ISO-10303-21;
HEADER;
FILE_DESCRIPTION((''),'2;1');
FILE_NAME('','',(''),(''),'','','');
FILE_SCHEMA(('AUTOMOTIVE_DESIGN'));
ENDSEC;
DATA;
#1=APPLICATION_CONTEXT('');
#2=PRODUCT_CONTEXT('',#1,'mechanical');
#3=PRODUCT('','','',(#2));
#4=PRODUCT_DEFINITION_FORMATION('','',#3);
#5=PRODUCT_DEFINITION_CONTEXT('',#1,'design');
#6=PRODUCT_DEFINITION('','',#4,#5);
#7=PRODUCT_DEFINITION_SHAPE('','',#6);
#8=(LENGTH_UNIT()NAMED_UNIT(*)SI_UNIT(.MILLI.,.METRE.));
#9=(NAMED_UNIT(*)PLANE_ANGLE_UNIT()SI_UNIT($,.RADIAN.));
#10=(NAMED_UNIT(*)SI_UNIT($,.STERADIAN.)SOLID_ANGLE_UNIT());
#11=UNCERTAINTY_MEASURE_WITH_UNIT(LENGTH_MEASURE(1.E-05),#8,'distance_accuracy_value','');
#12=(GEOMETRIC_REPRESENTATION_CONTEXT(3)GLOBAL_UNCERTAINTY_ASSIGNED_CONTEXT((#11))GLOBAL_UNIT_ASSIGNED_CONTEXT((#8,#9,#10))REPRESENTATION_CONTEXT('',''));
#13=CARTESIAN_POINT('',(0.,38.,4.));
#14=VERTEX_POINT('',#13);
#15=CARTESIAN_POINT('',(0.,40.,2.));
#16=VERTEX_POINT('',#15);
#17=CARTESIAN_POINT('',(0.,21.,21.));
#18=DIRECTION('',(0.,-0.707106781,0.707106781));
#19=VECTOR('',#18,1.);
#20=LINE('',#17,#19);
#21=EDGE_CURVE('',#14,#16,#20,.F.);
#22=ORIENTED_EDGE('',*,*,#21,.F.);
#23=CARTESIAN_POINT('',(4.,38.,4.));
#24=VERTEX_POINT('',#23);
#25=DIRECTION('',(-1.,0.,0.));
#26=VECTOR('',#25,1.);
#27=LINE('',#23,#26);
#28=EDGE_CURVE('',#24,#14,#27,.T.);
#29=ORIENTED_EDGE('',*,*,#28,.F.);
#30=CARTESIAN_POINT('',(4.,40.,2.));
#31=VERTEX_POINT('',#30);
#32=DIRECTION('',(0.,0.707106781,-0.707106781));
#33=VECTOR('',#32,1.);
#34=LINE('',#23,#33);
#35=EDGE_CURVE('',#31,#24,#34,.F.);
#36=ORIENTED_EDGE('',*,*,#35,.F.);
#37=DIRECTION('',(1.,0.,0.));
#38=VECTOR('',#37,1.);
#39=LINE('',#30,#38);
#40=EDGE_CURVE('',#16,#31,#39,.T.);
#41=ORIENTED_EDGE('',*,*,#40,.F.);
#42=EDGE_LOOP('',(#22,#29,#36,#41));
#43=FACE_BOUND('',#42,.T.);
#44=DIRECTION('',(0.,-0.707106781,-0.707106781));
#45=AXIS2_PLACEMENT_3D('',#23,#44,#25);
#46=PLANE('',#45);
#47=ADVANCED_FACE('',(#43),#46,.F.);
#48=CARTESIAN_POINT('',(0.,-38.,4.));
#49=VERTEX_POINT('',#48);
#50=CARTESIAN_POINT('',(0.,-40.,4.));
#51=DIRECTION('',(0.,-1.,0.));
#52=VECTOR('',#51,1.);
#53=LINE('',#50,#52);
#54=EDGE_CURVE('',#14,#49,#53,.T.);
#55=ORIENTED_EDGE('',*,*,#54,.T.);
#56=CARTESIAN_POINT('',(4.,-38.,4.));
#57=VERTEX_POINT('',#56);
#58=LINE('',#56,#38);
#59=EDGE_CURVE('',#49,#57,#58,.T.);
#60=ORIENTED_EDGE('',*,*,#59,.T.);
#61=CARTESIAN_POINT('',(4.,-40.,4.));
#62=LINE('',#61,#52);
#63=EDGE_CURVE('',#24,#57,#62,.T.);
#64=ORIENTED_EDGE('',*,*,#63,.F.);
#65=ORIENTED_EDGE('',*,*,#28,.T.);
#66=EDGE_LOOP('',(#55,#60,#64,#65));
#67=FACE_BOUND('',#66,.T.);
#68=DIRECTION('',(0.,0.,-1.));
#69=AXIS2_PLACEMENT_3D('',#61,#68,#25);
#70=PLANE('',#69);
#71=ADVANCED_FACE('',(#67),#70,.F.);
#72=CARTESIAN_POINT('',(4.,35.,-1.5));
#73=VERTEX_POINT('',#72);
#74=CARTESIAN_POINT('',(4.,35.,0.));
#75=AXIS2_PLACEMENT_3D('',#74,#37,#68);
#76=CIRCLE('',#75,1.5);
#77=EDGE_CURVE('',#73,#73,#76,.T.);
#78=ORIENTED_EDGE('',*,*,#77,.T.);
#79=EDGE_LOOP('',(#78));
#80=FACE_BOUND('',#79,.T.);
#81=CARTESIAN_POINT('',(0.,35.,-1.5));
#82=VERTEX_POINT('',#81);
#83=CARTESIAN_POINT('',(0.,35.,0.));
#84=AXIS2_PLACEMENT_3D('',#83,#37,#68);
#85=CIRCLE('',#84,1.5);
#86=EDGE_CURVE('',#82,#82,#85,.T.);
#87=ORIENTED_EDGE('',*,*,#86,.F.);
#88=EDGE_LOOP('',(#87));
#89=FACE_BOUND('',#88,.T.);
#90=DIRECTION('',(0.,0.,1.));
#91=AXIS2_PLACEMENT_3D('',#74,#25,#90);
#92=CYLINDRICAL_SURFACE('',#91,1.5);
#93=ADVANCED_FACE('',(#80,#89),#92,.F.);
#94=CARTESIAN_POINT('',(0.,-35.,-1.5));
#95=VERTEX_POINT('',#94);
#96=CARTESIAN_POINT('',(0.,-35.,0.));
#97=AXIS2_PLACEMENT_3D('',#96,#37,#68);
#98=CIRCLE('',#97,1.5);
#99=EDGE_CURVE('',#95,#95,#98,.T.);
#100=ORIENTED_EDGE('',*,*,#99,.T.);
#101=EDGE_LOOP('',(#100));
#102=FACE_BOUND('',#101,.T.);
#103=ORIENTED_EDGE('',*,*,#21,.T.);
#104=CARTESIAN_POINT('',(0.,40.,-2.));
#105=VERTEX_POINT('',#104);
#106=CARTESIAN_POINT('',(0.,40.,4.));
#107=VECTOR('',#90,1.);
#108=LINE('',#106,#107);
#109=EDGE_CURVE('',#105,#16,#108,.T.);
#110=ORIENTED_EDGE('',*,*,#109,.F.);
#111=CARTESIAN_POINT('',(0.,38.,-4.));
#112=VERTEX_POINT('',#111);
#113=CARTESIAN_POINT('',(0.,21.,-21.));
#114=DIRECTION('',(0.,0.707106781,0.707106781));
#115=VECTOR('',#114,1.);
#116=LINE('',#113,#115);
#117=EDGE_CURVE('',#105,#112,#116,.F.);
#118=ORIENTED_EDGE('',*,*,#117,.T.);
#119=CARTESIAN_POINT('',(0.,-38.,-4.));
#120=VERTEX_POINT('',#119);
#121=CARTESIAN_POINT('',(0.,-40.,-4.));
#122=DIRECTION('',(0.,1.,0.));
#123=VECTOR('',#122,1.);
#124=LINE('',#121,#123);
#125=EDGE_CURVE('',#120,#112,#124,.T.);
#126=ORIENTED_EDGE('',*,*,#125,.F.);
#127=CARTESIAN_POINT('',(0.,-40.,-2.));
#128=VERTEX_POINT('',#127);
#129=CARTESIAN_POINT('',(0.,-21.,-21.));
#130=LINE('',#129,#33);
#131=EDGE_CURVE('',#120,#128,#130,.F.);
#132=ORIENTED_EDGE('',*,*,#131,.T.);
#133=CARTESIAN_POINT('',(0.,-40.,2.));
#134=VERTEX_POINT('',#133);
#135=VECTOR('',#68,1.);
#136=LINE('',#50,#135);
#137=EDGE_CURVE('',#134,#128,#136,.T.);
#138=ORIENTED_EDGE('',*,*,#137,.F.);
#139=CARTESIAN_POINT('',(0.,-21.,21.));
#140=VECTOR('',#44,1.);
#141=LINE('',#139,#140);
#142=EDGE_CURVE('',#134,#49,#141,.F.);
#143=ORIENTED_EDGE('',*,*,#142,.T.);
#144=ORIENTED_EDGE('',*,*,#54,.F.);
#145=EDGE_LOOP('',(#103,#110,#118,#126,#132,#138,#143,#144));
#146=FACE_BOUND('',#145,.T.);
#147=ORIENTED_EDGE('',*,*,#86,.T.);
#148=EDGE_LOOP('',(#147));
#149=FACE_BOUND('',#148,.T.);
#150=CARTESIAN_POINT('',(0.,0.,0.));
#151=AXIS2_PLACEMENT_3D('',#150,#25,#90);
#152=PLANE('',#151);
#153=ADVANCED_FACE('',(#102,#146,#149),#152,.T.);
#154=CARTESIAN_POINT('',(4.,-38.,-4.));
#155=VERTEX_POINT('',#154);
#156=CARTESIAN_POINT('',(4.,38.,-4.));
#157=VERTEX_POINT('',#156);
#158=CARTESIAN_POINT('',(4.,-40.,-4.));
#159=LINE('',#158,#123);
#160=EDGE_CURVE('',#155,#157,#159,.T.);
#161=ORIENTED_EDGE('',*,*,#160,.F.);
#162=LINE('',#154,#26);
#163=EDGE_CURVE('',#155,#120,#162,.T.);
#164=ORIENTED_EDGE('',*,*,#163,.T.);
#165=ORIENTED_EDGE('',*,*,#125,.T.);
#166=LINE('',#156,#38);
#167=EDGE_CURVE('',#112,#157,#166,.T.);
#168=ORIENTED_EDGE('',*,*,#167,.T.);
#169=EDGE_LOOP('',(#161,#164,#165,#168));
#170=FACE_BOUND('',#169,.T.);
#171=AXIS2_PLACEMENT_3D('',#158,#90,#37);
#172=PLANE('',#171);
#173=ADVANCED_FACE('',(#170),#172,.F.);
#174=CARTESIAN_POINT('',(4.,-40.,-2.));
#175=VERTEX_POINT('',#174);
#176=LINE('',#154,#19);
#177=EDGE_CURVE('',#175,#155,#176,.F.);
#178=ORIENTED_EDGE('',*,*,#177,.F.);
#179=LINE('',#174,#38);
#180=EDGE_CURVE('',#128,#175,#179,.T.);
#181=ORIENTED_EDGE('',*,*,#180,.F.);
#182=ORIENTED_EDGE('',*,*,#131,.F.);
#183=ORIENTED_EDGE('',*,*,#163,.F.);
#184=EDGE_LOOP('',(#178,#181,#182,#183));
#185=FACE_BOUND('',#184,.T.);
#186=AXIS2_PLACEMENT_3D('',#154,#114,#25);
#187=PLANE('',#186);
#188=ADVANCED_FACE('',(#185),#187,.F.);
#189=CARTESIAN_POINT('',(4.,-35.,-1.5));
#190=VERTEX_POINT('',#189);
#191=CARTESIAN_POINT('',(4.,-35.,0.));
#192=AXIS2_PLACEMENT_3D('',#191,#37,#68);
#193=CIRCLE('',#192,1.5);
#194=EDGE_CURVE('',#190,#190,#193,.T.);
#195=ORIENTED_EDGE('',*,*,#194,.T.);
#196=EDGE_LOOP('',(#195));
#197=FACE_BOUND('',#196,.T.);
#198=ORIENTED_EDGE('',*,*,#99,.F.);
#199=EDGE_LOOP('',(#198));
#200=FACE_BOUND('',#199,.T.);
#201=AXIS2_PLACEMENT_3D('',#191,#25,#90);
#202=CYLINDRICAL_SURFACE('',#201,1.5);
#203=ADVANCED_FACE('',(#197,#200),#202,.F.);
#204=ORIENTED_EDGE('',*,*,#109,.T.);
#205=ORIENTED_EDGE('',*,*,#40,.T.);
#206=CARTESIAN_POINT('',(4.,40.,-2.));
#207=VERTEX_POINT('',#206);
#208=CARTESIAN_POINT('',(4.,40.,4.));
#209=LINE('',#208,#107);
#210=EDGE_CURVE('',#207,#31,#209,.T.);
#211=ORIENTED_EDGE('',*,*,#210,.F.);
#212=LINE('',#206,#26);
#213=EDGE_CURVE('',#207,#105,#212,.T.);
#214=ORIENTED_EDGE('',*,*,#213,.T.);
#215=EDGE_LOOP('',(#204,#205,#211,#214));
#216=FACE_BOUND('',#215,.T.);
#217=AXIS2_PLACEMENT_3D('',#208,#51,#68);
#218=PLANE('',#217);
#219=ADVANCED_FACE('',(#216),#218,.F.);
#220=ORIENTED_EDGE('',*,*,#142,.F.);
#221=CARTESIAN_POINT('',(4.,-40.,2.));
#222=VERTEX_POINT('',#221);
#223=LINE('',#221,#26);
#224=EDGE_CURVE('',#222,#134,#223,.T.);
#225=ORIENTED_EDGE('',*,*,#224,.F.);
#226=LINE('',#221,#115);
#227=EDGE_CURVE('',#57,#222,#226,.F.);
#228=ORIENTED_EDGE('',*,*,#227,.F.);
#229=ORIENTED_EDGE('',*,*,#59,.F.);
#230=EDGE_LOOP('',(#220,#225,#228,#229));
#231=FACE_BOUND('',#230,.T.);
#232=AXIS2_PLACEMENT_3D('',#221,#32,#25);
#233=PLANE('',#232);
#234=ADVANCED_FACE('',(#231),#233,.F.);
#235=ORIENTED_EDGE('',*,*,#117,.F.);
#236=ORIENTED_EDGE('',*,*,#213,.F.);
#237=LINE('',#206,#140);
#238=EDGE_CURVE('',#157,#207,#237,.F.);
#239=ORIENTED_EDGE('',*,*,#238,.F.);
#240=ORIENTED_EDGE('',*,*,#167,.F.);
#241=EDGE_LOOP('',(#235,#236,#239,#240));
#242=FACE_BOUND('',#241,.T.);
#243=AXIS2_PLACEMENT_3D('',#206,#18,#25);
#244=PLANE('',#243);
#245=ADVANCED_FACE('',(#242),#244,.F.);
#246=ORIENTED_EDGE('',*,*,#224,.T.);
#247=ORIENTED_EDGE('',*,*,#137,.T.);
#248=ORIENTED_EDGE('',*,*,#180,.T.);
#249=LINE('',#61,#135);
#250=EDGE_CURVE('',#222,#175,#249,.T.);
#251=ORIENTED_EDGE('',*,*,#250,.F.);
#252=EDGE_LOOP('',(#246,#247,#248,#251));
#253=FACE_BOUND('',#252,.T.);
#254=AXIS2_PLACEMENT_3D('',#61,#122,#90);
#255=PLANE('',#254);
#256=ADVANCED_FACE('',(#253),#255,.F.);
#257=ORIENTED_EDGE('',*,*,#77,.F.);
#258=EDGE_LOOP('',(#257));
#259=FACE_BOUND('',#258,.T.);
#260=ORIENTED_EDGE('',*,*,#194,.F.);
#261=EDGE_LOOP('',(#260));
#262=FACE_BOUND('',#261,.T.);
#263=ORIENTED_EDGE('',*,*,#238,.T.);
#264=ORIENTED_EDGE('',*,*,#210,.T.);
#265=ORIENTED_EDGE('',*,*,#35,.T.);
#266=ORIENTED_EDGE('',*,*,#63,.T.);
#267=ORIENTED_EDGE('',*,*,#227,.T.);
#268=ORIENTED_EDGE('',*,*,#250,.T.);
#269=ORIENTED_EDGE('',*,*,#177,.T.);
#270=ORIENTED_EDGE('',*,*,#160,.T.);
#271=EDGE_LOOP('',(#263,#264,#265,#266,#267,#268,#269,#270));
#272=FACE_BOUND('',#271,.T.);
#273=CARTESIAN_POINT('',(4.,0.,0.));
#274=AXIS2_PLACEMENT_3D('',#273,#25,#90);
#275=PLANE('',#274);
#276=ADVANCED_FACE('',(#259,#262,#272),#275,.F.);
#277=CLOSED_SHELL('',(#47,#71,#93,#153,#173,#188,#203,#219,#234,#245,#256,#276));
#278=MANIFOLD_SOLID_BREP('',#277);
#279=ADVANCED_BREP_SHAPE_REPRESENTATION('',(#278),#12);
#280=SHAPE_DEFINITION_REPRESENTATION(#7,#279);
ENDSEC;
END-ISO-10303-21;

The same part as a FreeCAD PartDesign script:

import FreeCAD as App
import Part
import Sketcher
from FreeCAD import Vector


def edges_at(feature, points):
    """Names of the edges that pass closest to the given points."""
    edges = feature.Shape.Edges
    near = lambda p: min(range(len(edges)), key=lambda i: edges[i].distToShape(Part.Vertex(*p))[0])
    return sorted({f"Edge{near(p) + 1}" for p in points})


def add_polygon(sketch, points):
    """Adds a closed chain of lines whose ends are joined by coincident constraints."""
    first, n = sketch.GeometryCount, len(points)
    for a, b in zip(points, points[1:] + points[:1]):
        sketch.addGeometry(Part.LineSegment(App.Vector(*a, 0), App.Vector(*b, 0)), False)
    for i in range(n):
        sketch.addConstraint(Sketcher.Constraint("Coincident", first + i, 2, first + (i + 1) % n, 1))

doc = App.newDocument("Part")
body = doc.addObject("PartDesign::Body", "Body")

sketch1 = body.newObject("Sketcher::SketchObject", "Sketch")
sketch1.AttachmentSupport = (doc.getObject("YZ_Plane"), [""])
sketch1.MapMode = "FlatFace"
add_polygon(sketch1, [(40, 4), (-40, 4), (-40, -4), (40, -4)])
sketch1.addGeometry(Part.Circle(Vector(-35, 0, 0), Vector(0, 0, 1), 1.5), False)
sketch1.addGeometry(Part.Circle(Vector(35, 0, 0), Vector(0, 0, 1), 1.5), False)
sketch1.addConstraint([
    Sketcher.Constraint("Horizontal", 0),
    Sketcher.Constraint("Vertical", 1),
    Sketcher.Constraint("Horizontal", 2),
    Sketcher.Constraint("Vertical", 3),
    Sketcher.Constraint("Equal", 4, 5),
    Sketcher.Constraint("Symmetric", 4, 3, 5, 3, -1, 1),
    Sketcher.Constraint("Symmetric", 0, 2, 2, 2, -1, 1),
    Sketcher.Constraint("PointOnObject", 4, 3, -1),
    Sketcher.Constraint("Diameter", 4, 3.0),
    Sketcher.Constraint("DistanceX", 0, 2, 0, 1, 80.0),
    Sketcher.Constraint("DistanceY", 1, 2, 1, 1, 8.0),
    Sketcher.Constraint("DistanceX", 4, 3, -1, 1, 35.0),
])
pad1 = body.newObject("PartDesign::Pad", "Pad")
pad1.Profile = sketch1
pad1.Length = 4
doc.recompute()

chamfer = body.newObject("PartDesign::Chamfer", "Chamfer")
chamfer.Base = (pad1, edges_at(pad1, [
    (2, -40, -4),
    (2, -40, 4),
    (2, 40, 4),
    (2, 40, -4),
]))
chamfer.Size = 2

doc.recompute()
